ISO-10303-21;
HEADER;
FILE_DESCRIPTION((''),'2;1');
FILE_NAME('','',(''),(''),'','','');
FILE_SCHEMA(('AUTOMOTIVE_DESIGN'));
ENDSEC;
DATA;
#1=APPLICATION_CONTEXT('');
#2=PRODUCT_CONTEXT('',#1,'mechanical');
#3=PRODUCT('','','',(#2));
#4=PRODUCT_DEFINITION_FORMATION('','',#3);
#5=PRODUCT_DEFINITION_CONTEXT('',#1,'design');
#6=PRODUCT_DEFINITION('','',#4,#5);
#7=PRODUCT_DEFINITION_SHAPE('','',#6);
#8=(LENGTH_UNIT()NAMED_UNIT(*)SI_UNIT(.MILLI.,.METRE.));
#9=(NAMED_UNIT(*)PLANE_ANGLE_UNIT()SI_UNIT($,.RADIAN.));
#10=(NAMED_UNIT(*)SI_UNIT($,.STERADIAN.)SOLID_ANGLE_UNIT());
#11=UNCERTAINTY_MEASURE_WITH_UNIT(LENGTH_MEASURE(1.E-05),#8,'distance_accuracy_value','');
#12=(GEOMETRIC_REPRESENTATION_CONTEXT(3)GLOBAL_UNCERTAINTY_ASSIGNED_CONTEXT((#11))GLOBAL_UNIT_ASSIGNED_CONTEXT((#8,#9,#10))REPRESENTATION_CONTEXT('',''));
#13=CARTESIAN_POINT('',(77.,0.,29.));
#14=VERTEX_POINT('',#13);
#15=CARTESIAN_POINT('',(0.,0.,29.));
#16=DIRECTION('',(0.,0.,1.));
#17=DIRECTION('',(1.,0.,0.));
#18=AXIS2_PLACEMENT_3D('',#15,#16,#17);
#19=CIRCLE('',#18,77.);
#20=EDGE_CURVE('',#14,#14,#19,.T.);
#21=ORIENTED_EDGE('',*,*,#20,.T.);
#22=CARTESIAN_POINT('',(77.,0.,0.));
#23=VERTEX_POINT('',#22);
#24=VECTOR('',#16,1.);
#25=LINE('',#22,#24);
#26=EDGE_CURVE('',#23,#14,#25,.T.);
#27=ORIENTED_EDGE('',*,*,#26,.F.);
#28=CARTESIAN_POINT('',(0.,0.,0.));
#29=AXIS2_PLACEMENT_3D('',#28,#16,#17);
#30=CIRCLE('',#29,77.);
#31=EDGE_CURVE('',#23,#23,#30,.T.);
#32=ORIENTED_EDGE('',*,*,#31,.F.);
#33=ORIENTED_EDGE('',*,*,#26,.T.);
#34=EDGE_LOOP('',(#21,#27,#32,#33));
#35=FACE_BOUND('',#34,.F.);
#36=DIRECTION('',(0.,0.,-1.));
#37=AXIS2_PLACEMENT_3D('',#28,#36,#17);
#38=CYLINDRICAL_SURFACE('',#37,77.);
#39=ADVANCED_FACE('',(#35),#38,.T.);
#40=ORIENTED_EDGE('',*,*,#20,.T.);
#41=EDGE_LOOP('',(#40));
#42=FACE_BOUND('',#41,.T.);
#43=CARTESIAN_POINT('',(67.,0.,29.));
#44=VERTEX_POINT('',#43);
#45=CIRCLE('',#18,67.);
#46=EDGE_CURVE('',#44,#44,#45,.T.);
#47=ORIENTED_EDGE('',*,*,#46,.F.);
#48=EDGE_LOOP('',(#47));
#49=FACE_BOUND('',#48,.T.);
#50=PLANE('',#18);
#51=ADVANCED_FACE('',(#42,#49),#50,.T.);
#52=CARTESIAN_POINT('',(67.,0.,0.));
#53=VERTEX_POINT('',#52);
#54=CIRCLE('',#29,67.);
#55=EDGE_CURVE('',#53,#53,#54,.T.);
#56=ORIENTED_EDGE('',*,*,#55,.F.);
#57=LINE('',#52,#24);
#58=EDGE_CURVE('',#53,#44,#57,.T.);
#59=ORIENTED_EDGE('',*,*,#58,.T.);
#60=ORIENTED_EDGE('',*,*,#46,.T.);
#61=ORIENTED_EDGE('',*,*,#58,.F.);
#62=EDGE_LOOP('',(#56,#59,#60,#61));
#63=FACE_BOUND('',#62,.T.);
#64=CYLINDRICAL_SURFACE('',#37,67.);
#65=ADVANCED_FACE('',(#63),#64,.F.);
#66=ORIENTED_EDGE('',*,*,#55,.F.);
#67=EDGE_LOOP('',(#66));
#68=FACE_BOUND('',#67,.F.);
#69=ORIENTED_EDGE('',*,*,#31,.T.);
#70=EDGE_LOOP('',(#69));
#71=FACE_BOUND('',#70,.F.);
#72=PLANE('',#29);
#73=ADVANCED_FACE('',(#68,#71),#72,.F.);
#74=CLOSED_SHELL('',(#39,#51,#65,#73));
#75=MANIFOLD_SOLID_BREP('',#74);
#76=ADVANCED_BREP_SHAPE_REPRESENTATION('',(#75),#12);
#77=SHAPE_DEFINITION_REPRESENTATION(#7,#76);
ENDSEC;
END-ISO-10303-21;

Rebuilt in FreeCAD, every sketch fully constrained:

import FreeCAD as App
import Part
import Sketcher

V = App.Vector

doc = App.newDocument("Part")
body = doc.addObject("PartDesign::Body", "Body")

sketch1 = doc.addObject("Sketcher::SketchObject", "Sketch")
body.addObject(sketch1)
sketch1.AttachmentSupport = (doc.XY_Plane, [""])
sketch1.MapMode = "FlatFace"
sketch1.addGeometry([
    Part.Circle(V(0, 0, 0), V(0, 0, 1), 77),
    Part.Circle(V(0, 0, 0), V(0, 0, 1), 67),
], False)
sketch1.addConstraint([
    Sketcher.Constraint("Coincident", 0, 3, -1, 1),
    Sketcher.Constraint("Coincident", 1, 3, -1, 1),
    Sketcher.Constraint("Diameter", 0, 154.0),
    Sketcher.Constraint("Diameter", 1, 134.0),
])
pad1 = doc.addObject("PartDesign::Pad", "Pad")
body.addObject(pad1)
pad1.Profile = sketch1
pad1.Length = 29

doc.recompute()
